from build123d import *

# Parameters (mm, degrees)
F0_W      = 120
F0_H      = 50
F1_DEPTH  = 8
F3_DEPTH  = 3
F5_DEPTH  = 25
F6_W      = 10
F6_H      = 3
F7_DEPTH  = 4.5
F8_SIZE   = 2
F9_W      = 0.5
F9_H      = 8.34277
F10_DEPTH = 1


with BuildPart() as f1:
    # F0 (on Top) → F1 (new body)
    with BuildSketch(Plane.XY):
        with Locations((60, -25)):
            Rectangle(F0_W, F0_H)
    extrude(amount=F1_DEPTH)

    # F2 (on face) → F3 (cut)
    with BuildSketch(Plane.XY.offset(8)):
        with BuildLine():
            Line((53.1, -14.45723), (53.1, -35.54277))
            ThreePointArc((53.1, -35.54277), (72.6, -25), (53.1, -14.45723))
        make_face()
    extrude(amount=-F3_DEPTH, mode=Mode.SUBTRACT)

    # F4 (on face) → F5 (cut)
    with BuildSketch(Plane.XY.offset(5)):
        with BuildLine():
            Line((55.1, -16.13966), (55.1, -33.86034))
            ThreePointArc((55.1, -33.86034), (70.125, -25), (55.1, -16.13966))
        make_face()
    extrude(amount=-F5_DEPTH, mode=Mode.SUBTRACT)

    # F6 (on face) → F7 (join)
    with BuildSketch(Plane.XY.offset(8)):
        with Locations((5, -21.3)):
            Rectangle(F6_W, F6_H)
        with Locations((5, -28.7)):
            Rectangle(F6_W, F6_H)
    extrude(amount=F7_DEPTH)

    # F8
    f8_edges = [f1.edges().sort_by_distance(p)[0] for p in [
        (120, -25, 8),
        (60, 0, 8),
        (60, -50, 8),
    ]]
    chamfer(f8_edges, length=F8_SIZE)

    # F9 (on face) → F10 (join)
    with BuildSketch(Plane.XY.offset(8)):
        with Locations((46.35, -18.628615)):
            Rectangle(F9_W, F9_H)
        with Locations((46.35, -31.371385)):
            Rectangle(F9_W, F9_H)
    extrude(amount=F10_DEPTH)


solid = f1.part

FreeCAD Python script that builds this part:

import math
import FreeCAD as App
import Part
import Sketcher
from FreeCAD import Vector
Q = App.Units.Quantity


def edges_at(feature, points):
    """Names of the edges that pass closest to the given points."""
    edges = feature.Shape.Edges
    near = lambda p: min(range(len(edges)), key=lambda i: edges[i].distToShape(Part.Vertex(*p))[0])
    return sorted({f"Edge{near(p) + 1}" for p in points})

doc = App.newDocument("Part")
body = doc.addObject("PartDesign::Body", "Body")

# Sketch on XY plane
sketch1 = doc.addObject("Sketcher::SketchObject", "Sketch")
body.addObject(sketch1)
sketch1.AttachmentSupport = (doc.XY_Plane, [""])
sketch1.MapMode = "FlatFace"
sketch1.addGeometry([
    Part.LineSegment(Vector(0, 0, 0), Vector(0, -50, 0)),
    Part.LineSegment(Vector(0, -50, 0), Vector(120, -50, 0)),
    Part.LineSegment(Vector(120, -50, 0), Vector(120, 0, 0)),
    Part.LineSegment(Vector(120, 0, 0), Vector(0, 0, 0)),
], False)
sketch1.addConstraint([
    Sketcher.Constraint("Coincident", 0, 2, 1, 1),
    Sketcher.Constraint("Coincident", 1, 2, 2, 1),
    Sketcher.Constraint("Coincident", 2, 2, 3, 1),
    Sketcher.Constraint("Coincident", 3, 2, 0, 1),
    Sketcher.Constraint("Vertical", 0),
    Sketcher.Constraint("Horizontal", 1),
    Sketcher.Constraint("Vertical", 2),
    Sketcher.Constraint("Horizontal", 3),
    Sketcher.Constraint("Coincident", 3, 2, -1, 1),
    Sketcher.Constraint("DistanceX", 1, 1, 1, 2, Q("120 mm")),
    Sketcher.Constraint("DistanceY", 0, 2, 0, 1, Q("50 mm")),
])
pad1 = doc.addObject("PartDesign::Pad", "Pad")
body.addObject(pad1)
pad1.Profile = sketch1
pad1.Length = 8

# Sketch on XY plane
sketch2 = doc.addObject("Sketcher::SketchObject", "Sketch001")
body.addObject(sketch2)
sketch2.AttachmentSupport = (doc.XY_Plane, [""])
sketch2.MapMode = "FlatFace"
sketch2.AttachmentOffset = App.Placement(Vector(0, 0, 8), App.Rotation())
sketch2.addGeometry([
    Part.LineSegment(Vector(53.1, -14.45723, 0), Vector(53.1, -35.54277, 0)),
    Part.ArcOfCircle(Part.Circle(Vector(60, -25, 0), Vector(0, 0, 1), 12.6), math.radians(-123.203823), math.radians(123.203823)),
], False)
sketch2.addConstraint([
    Sketcher.Constraint("Coincident", 0, 1, 1, 2),
    Sketcher.Constraint("Coincident", 1, 1, 0, 2),
    Sketcher.Constraint("Vertical", 0),
    Sketcher.Constraint("Radius", 1, Q("12.6 mm")),
    Sketcher.Constraint("DistanceX", -1, 1, 1, 3, Q("60 mm")),
    Sketcher.Constraint("DistanceY", 1, 3, -1, 1, Q("25 mm")),
    Sketcher.Constraint("DistanceX", -1, 1, 0, 1, Q("53.1 mm")),
])
pocket1 = doc.addObject("PartDesign::Pocket", "Pocket")
body.addObject(pocket1)
pocket1.Profile = sketch2
pocket1.Length = 3

# Sketch on XY plane
sketch3 = doc.addObject("Sketcher::SketchObject", "Sketch002")
body.addObject(sketch3)
sketch3.AttachmentSupport = (doc.XY_Plane, [""])
sketch3.MapMode = "FlatFace"
sketch3.AttachmentOffset = App.Placement(Vector(0, 0, 5), App.Rotation())
sketch3.addGeometry([
    Part.LineSegment(Vector(55.1, -16.13966, 0), Vector(55.1, -33.86034, 0)),
    Part.ArcOfCircle(Part.Circle(Vector(60, -25, 0), Vector(0, 0, 1), 10.125), math.radians(-118.943743), math.radians(118.943743)),
], False)
sketch3.addConstraint([
    Sketcher.Constraint("Coincident", 0, 1, 1, 2),
    Sketcher.Constraint("Coincident", 1, 1, 0, 2),
    Sketcher.Constraint("Vertical", 0),
    Sketcher.Constraint("DistanceX", -1, 1, 1, 3, Q("60 mm")),
    Sketcher.Constraint("DistanceY", 1, 3, -1, 1, Q("25 mm")),
    Sketcher.Constraint("Radius", 1, Q("10.125 mm")),
    Sketcher.Constraint("DistanceX", -1, 1, 0, 1, Q("55.1 mm")),
])
pocket2 = doc.addObject("PartDesign::Pocket", "Pocket001")
body.addObject(pocket2)
pocket2.Profile = sketch3
pocket2.Length = 25

# Sketch on XY plane
sketch4 = doc.addObject("Sketcher::SketchObject", "Sketch003")
body.addObject(sketch4)
sketch4.AttachmentSupport = (doc.XY_Plane, [""])
sketch4.MapMode = "FlatFace"
sketch4.AttachmentOffset = App.Placement(Vector(0, 0, 8), App.Rotation())
sketch4.addGeometry([
    Part.LineSegment(Vector(0, -19.8, 0), Vector(0, -22.8, 0)),  # 0
    Part.LineSegment(Vector(0, -22.8, 0), Vector(10, -22.8, 0)),  # 1
    Part.LineSegment(Vector(10, -22.8, 0), Vector(10, -19.8, 0)),  # 2
    Part.LineSegment(Vector(10, -19.8, 0), Vector(0, -19.8, 0)),  # 3
    Part.LineSegment(Vector(0, -27.2, 0), Vector(0, -30.2, 0)),  # 4
    Part.LineSegment(Vector(0, -30.2, 0), Vector(10, -30.2, 0)),  # 5
    Part.LineSegment(Vector(10, -30.2, 0), Vector(10, -27.2, 0)),  # 6
    Part.LineSegment(Vector(10, -27.2, 0), Vector(0, -27.2, 0)),  # 7
], False)
sketch4.addConstraint([
    Sketcher.Constraint("Coincident", 0, 2, 1, 1),
    Sketcher.Constraint("Coincident", 1, 2, 2, 1),
    Sketcher.Constraint("Coincident", 2, 2, 3, 1),
    Sketcher.Constraint("Coincident", 3, 2, 0, 1),
    Sketcher.Constraint("Coincident", 4, 2, 5, 1),
    Sketcher.Constraint("Coincident", 5, 2, 6, 1),
    Sketcher.Constraint("Coincident", 6, 2, 7, 1),
    Sketcher.Constraint("Coincident", 7, 2, 4, 1),
    Sketcher.Constraint("Vertical", 0),
    Sketcher.Constraint("Horizontal", 1),
    Sketcher.Constraint("Vertical", 2),
    Sketcher.Constraint("Horizontal", 3),
    Sketcher.Constraint("Vertical", 4),
    Sketcher.Constraint("Horizontal", 5),
    Sketcher.Constraint("Vertical", 6),
    Sketcher.Constraint("Horizontal", 7),
    Sketcher.Constraint("PointOnObject", 0, 2, -2),
    Sketcher.Constraint("PointOnObject", 4, 2, -2),
    Sketcher.Constraint("Vertical", 2, 2, 5, 2),
    Sketcher.Constraint("Equal", 2, 4),
    Sketcher.Constraint("DistanceX", 1, 1, 1, 2, Q("10 mm")),
    Sketcher.Constraint("DistanceY", 0, 2, 0, 1, Q("3 mm")),
    Sketcher.Constraint("DistanceY", 0, 2, -1, 1, Q("22.8 mm")),
    Sketcher.Constraint("DistanceY", 4, 2, -1, 1, Q("30.2 mm")),
])
pad2 = doc.addObject("PartDesign::Pad", "Pad001")
body.addObject(pad2)
pad2.Profile = sketch4
pad2.Length = 4.5
doc.recompute()

chamfer = doc.addObject("PartDesign::Chamfer", "Chamfer")
body.addObject(chamfer)
chamfer.Base = (pad2, edges_at(pad2, [(120, -25, 8), (60, 0, 8), (60, -50, 8)]))
chamfer.Size = 2

# Sketch on XY plane
sketch5 = doc.addObject("Sketcher::SketchObject", "Sketch004")
body.addObject(sketch5)
sketch5.AttachmentSupport = (doc.XY_Plane, [""])
sketch5.MapMode = "FlatFace"
sketch5.AttachmentOffset = App.Placement(Vector(0, 0, 8), App.Rotation())
sketch5.addGeometry([
    Part.LineSegment(Vector(46.1, -14.45723, 0), Vector(46.1, -22.8, 0)),  # 0
    Part.LineSegment(Vector(46.1, -22.8, 0), Vector(46.6, -22.8, 0)),  # 1
    Part.LineSegment(Vector(46.6, -22.8, 0), Vector(46.6, -14.45723, 0)),  # 2
    Part.LineSegment(Vector(46.6, -14.45723, 0), Vector(46.1, -14.45723, 0)),  # 3
    Part.LineSegment(Vector(46.1, -27.2, 0), Vector(46.1, -35.54277, 0)),  # 4
    Part.LineSegment(Vector(46.1, -35.54277, 0), Vector(46.6, -35.54277, 0)),  # 5
    Part.LineSegment(Vector(46.6, -35.54277, 0), Vector(46.6, -27.2, 0)),  # 6
    Part.LineSegment(Vector(46.6, -27.2, 0), Vector(46.1, -27.2, 0)),  # 7
], False)
sketch5.addConstraint([
    Sketcher.Constraint("Coincident", 0, 2, 1, 1),
    Sketcher.Constraint("Coincident", 1, 2, 2, 1),
    Sketcher.Constraint("Coincident", 2, 2, 3, 1),
    Sketcher.Constraint("Coincident", 3, 2, 0, 1),
    Sketcher.Constraint("Coincident", 4, 2, 5, 1),
    Sketcher.Constraint("Coincident", 5, 2, 6, 1),
    Sketcher.Constraint("Coincident", 6, 2, 7, 1),
    Sketcher.Constraint("Coincident", 7, 2, 4, 1),
    Sketcher.Constraint("Vertical", 0),
    Sketcher.Constraint("Horizontal", 1),
    Sketcher.Constraint("Vertical", 2),
    Sketcher.Constraint("Horizontal", 3),
    Sketcher.Constraint("Vertical", 4),
    Sketcher.Constraint("Horizontal", 5),
    Sketcher.Constraint("Vertical", 6),
    Sketcher.Constraint("Horizontal", 7),
    Sketcher.Constraint("Vertical", 3, 2, 4, 2),
    Sketcher.Constraint("Vertical", 2, 2, 5, 2),
    Sketcher.Constraint("Equal", 2, 4),
    Sketcher.Constraint("DistanceX", 1, 1, 1, 2, Q("0.5 mm")),
    Sketcher.Constraint("DistanceX", -1, 1, 0, 2, Q("46.1 mm")),
    Sketcher.Constraint("DistanceY", 0, 2, -1, 1, Q("22.8 mm")),
    Sketcher.Constraint("DistanceY", 6, 2, -1, 1, Q("27.2 mm")),
    Sketcher.Constraint("DistanceY", 0, 2, 0, 1, Q("8.34277 mm")),
])
pad3 = doc.addObject("PartDesign::Pad", "Pad002")
body.addObject(pad3)
pad3.Profile = sketch5
pad3.Length = 1

doc.recompute()
